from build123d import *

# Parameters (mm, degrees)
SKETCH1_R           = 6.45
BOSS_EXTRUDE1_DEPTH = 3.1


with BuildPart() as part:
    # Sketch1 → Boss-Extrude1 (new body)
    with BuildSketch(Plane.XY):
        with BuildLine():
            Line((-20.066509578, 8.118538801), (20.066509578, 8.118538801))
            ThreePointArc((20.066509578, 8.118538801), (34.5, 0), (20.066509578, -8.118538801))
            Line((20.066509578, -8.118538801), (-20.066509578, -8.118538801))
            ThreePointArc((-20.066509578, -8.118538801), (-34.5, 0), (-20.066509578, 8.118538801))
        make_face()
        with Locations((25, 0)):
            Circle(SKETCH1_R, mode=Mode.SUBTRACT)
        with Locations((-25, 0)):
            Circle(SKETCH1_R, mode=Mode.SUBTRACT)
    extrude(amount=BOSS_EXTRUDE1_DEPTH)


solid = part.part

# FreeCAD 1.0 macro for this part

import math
import FreeCAD as App
import Part
import Sketcher
from FreeCAD import Vector

doc = App.newDocument("Part")
body = doc.addObject("PartDesign::Body", "Body")

sketch1 = body.newObject("Sketcher::SketchObject", "Sketch")
sketch1.AttachmentSupport = (doc.getObject("XY_Plane"), [""])
sketch1.MapMode = "FlatFace"
sketch1.addGeometry(Part.LineSegment(Vector(20, 8, 0), Vector(-20, 8, 0)), False)
sketch1.addGeometry(Part.ArcOfCircle(Part.Circle(Vector(-25, 0, 0), Vector(0, 0, 1), 10), math.radians(59), math.radians(301)), False)
sketch1.addGeometry(Part.LineSegment(Vector(-20, -8, 0), Vector(20, -8, 0)), False)
sketch1.addGeometry(Part.ArcOfCircle(Part.Circle(Vector(25, 0, 0), Vector(0, 0, 1), 10), math.radians(-121), math.radians(121)), False)
sketch1.addGeometry(Part.Circle(Vector(25, 0, 0), Vector(0, 0, 1), 6), False)
sketch1.addGeometry(Part.Circle(Vector(-25, 0, 0), Vector(0, 0, 1), 6), False)
sketch1.addConstraint(Sketcher.Constraint("Coincident", 0, 2, 1, 1))
sketch1.addConstraint(Sketcher.Constraint("Coincident", 1, 2, 2, 1))
sketch1.addConstraint(Sketcher.Constraint("Coincident", 2, 2, 3, 1))
sketch1.addConstraint(Sketcher.Constraint("Coincident", 3, 2, 0, 1))
sketch1.addConstraint(Sketcher.Constraint("Horizontal", 0))
sketch1.addConstraint(Sketcher.Constraint("Horizontal", 2))
sketch1.addConstraint(Sketcher.Constraint("Coincident", 4, 3, 3, 3))
sketch1.addConstraint(Sketcher.Constraint("Coincident", 5, 3, 1, 3))
sketch1.addConstraint(Sketcher.Constraint("Equal", 1, 3))
sketch1.addConstraint(Sketcher.Constraint("Equal", 4, 5))
sketch1.addConstraint(Sketcher.Constraint("Symmetric", 1, 3, 3, 3, -1, 1))
sketch1.addConstraint(Sketcher.Constraint("Symmetric", 0, 2, 1, 2, -1))
sketch1.addConstraint(Sketcher.Constraint("Diameter", 4, 12.9))
sketch1.addConstraint(Sketcher.Constraint("Radius", 1, 9.5))
sketch1.addConstraint(Sketcher.Constraint("DistanceX", 1, 3, -1, 1, 25.0))
sketch1.addConstraint(Sketcher.Constraint("DistanceX", 0, 2, 0, 1, 40.133019))
pad1 = body.newObject("PartDesign::Pad", "Pad")
pad1.Profile = sketch1
pad1.Length = 3.1

doc.recompute()
